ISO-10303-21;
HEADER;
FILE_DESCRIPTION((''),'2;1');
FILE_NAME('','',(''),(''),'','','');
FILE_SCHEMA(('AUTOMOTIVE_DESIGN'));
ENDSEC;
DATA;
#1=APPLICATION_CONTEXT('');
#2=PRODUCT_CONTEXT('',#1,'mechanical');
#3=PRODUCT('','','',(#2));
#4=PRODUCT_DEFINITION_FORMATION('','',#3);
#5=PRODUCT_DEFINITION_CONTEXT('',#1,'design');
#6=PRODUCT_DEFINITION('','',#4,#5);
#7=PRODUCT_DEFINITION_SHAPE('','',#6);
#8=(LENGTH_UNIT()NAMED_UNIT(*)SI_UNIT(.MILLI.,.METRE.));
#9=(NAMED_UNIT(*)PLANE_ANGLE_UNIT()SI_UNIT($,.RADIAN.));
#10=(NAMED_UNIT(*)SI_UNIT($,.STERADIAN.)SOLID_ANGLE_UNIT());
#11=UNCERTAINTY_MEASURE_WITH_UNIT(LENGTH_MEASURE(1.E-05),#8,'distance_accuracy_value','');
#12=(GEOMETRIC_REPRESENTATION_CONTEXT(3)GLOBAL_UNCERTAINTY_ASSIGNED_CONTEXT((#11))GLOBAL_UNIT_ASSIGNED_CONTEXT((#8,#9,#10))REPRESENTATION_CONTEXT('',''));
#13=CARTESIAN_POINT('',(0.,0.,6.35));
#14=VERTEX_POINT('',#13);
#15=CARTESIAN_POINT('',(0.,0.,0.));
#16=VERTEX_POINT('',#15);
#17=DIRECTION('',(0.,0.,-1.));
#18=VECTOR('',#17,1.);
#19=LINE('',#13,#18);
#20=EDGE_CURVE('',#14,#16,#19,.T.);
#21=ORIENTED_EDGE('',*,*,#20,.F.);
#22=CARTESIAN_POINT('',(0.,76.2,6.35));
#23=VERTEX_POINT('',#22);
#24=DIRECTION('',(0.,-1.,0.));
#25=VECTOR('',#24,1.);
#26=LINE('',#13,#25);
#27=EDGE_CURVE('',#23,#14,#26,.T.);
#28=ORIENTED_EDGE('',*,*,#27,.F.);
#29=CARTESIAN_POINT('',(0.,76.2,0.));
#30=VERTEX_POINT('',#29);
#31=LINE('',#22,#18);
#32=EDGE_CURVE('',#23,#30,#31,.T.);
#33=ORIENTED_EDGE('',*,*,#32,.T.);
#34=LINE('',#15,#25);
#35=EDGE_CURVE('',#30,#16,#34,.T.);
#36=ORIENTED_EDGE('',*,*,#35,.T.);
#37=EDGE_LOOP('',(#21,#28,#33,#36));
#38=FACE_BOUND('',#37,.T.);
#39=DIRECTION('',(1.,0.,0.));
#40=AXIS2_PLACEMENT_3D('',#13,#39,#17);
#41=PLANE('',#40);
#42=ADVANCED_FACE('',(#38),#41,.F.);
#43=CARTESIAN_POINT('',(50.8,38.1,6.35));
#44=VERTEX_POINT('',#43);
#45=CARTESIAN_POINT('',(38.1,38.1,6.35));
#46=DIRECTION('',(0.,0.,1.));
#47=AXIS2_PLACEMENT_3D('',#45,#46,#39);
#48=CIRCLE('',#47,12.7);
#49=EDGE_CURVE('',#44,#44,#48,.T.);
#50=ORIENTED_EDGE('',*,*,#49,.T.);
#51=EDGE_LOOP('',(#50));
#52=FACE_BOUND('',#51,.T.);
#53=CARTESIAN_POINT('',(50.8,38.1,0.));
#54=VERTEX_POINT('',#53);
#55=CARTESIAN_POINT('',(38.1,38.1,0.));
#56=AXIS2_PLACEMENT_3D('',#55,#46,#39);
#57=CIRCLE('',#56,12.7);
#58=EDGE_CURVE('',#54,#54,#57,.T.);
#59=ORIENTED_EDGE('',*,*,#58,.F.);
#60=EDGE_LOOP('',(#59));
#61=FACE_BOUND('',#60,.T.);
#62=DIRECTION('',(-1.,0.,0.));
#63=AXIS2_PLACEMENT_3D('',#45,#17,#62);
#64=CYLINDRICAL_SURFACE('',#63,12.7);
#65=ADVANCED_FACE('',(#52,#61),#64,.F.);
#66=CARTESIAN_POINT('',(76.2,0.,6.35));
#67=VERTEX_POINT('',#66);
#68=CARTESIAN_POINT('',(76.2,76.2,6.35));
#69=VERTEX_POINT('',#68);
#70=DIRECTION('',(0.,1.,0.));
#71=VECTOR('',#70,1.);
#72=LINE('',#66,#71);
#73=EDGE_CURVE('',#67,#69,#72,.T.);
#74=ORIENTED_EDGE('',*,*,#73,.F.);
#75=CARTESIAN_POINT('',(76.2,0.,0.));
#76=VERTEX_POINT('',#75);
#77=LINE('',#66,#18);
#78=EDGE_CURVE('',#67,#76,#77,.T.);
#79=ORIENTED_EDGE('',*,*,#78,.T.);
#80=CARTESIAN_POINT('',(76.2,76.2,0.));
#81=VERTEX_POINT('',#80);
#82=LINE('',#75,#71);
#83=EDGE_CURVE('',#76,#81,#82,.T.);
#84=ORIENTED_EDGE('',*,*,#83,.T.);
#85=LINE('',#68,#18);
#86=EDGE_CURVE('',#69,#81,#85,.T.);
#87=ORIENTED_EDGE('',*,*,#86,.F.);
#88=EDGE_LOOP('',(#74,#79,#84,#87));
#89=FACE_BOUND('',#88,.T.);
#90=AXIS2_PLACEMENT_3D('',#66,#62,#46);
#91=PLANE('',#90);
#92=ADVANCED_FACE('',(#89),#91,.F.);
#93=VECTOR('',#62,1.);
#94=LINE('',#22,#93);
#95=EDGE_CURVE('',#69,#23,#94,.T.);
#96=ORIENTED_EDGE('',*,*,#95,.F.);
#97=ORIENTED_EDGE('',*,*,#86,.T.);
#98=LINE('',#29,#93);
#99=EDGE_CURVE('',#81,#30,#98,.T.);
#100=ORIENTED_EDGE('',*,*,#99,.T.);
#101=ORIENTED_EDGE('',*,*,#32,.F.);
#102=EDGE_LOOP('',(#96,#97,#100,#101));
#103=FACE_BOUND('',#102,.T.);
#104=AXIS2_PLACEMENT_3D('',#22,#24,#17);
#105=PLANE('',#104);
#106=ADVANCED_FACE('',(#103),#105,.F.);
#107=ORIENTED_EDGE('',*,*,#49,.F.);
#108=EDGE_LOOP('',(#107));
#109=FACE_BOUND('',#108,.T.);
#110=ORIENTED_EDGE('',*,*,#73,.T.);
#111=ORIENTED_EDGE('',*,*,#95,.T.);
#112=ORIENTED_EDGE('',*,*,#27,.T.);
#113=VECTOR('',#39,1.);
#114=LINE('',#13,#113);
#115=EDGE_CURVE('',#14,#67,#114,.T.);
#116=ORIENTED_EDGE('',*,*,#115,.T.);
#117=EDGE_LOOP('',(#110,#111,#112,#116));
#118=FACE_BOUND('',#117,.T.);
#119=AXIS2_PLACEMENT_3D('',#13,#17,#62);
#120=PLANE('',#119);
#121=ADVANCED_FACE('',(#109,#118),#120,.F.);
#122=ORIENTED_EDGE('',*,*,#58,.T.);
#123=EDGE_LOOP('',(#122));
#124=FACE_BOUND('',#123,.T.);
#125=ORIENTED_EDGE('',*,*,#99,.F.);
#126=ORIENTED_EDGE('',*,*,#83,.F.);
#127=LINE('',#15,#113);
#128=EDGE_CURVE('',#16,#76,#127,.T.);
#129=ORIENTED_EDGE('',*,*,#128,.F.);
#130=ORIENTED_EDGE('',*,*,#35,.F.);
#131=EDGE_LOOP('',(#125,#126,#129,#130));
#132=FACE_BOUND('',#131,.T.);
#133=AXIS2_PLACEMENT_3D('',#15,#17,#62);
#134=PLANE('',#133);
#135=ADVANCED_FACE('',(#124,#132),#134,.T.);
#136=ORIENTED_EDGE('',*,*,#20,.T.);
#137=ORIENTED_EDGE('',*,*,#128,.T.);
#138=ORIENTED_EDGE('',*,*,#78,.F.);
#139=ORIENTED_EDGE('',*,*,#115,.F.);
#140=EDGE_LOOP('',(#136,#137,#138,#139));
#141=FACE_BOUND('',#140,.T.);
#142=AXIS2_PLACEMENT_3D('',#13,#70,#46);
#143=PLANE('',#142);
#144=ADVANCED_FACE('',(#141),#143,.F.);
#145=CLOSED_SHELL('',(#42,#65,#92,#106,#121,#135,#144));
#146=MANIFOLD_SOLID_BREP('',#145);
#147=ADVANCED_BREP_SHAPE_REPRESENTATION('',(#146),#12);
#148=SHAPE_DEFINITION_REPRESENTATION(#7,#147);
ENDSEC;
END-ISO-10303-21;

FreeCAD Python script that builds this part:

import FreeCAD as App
import Part
import Sketcher
Q = App.Units.Quantity


def add_polygon(sketch, points):
    """Adds a closed chain of lines whose ends are joined by coincident constraints."""
    first, n = sketch.GeometryCount, len(points)
    for a, b in zip(points, points[1:] + points[:1]):
        sketch.addGeometry(Part.LineSegment(App.Vector(*a, 0), App.Vector(*b, 0)), False)
    for i in range(n):
        sketch.addConstraint(Sketcher.Constraint("Coincident", first + i, 2, first + (i + 1) % n, 1))

doc = App.newDocument("Part")
params = doc.addObject("Spreadsheet::Sheet", "Params")
for row, (alias, value) in enumerate([
    ("sketch1_diameter", "1 in"),
    ("sketch1_width", "3 in"),
    ("pad1_length", "0.25 in"),
], start=1):
    params.set(f"A{row}", alias)
    params.set(f"B{row}", "=" + value)
    params.setAlias(f"B{row}", alias)

body = doc.addObject("PartDesign::Body", "Body")

# Sketch on XY plane
sketch1 = doc.addObject("Sketcher::SketchObject", "Sketch")
body.addObject(sketch1)
sketch1.AttachmentSupport = (doc.XY_Plane, [""])
sketch1.MapMode = "FlatFace"
add_polygon(sketch1, [(0, 76.2), (0, 0), (76.2, 0), (76.2, 76.2)])  # lines 0-3
sketch1.addGeometry(Part.Circle(App.Vector(38.1, 38.1, 0), App.Vector(0, 0, 1), 12.7), False)  # 4
sketch1.addConstraint(Sketcher.Constraint("Vertical", 0))
sketch1.addConstraint(Sketcher.Constraint("Horizontal", 1))
sketch1.addConstraint(Sketcher.Constraint("Vertical", 2))
sketch1.addConstraint(Sketcher.Constraint("Horizontal", 3))
sketch1.addConstraint(Sketcher.Constraint("Coincident", 0, 2, -1, 1))
sketch1.addConstraint(Sketcher.Constraint("Equal", 3, 0))
sketch1.addConstraint(Sketcher.Constraint("Diameter", 4, Q("1 in")))
sketch1.addConstraint(Sketcher.Constraint("DistanceX", 1, 1, 1, 2, Q("3 in")))
sketch1.addConstraint(Sketcher.Constraint("DistanceX", -1, 1, 4, 3, Q("1.5 in")))
sketch1.addConstraint(Sketcher.Constraint("DistanceY", -1, 1, 4, 3, Q("1.5 in")))
sketch1.setExpression("Constraints[10]", "Params.sketch1_diameter")
sketch1.setExpression("Constraints[11]", "Params.sketch1_width")
pad1 = doc.addObject("PartDesign::Pad", "Pad")
body.addObject(pad1)
pad1.Profile = sketch1
pad1.setExpression("Length", "Params.pad1_length")

doc.recompute()
